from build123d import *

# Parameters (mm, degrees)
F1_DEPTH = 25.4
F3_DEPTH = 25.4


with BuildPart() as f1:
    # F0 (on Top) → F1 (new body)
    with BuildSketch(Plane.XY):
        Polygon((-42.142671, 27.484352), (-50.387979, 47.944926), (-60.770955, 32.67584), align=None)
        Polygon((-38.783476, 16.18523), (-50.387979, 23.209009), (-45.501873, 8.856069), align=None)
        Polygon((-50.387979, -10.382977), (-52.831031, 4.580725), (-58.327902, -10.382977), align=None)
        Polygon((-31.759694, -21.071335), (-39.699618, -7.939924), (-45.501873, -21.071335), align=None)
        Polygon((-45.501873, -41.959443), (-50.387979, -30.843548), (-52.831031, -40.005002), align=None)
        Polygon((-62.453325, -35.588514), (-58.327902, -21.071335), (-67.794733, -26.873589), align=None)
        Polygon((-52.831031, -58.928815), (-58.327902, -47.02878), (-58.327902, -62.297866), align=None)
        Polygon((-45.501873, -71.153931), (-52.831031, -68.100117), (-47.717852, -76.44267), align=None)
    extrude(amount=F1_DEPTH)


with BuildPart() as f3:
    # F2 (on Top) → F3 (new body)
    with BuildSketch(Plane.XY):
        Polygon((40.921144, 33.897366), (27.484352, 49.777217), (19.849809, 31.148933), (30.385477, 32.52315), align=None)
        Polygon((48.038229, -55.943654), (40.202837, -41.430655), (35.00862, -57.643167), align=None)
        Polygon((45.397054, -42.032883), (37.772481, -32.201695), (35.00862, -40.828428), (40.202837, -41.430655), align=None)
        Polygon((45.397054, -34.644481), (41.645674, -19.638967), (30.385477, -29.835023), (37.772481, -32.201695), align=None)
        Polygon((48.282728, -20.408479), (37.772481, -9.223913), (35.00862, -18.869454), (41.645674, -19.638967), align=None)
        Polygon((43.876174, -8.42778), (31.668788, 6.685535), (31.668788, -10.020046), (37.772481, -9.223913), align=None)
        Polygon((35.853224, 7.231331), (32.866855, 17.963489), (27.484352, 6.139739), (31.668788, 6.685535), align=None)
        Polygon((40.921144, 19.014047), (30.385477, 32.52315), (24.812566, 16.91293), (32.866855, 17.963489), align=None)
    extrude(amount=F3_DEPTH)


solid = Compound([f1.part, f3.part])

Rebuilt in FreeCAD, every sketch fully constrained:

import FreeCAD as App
import Part
import Sketcher

V = App.Vector
Q = App.Units.Quantity


def add_polygon(sketch, points):
    """Adds a closed chain of lines whose ends are joined by coincident constraints."""
    first, n = sketch.GeometryCount, len(points)
    for a, b in zip(points, points[1:] + points[:1]):
        sketch.addGeometry(Part.LineSegment(App.Vector(*a, 0), App.Vector(*b, 0)), False)
    for i in range(n):
        sketch.addConstraint(Sketcher.Constraint("Coincident", first + i, 2, first + (i + 1) % n, 1))

doc = App.newDocument("Part")
body = doc.addObject("PartDesign::Body", "Body")
body.AllowCompound = True

# Sketch on XY plane
sketch1 = doc.addObject("Sketcher::SketchObject", "Sketch")
body.addObject(sketch1)
sketch1.AttachmentSupport = (doc.XY_Plane, [""])
sketch1.MapMode = "FlatFace"
add_polygon(sketch1, [(-42, 27), (-50, 48), (-61, 33)])  # lines 0-2
add_polygon(sketch1, [(-39, 16), (-50, 23), (-46, 9)])  # lines 3-5
add_polygon(sketch1, [(-50, -10), (-53, 5), (-58, -10)])  # lines 6-8
add_polygon(sketch1, [(-32, -21), (-40, -8), (-46, -21)])  # lines 9-11
add_polygon(sketch1, [(-46, -42), (-50, -31), (-53, -40)])  # lines 12-14
add_polygon(sketch1, [(-62, -36), (-58, -21), (-68, -27)])  # lines 15-17
add_polygon(sketch1, [(-53, -59), (-58, -47), (-58, -62)])  # lines 18-20
add_polygon(sketch1, [(-46, -71), (-53, -68), (-48, -76)])  # lines 21-23
sketch1.addConstraint(Sketcher.Constraint("Horizontal", 8))
sketch1.addConstraint(Sketcher.Constraint("Horizontal", 11))
sketch1.addConstraint(Sketcher.Constraint("Vertical", 19))
sketch1.addConstraint(Sketcher.Constraint("Perpendicular", 13, 14))
sketch1.addConstraint(Sketcher.Constraint("Perpendicular", 16, 17))
sketch1.addConstraint(Sketcher.Constraint("Perpendicular", 17, 20))
sketch1.addConstraint(Sketcher.Constraint("Perpendicular", 20, 22))
sketch1.addConstraint(Sketcher.Constraint("Horizontal", 11, 2, 15, 2))
sketch1.addConstraint(Sketcher.Constraint("Vertical", 0, 2, 3, 2))
sketch1.addConstraint(Sketcher.Constraint("Vertical", 3, 2, 8, 2))
sketch1.addConstraint(Sketcher.Constraint("Vertical", 4, 2, 10, 2))
sketch1.addConstraint(Sketcher.Constraint("Vertical", 8, 2, 12, 2))
sketch1.addConstraint(Sketcher.Constraint("Vertical", 6, 2, 13, 2))
sketch1.addConstraint(Sketcher.Constraint("Vertical", 10, 2, 14, 2))
sketch1.addConstraint(Sketcher.Constraint("Vertical", 7, 2, 15, 2))
sketch1.addConstraint(Sketcher.Constraint("Vertical", 15, 2, 18, 2))
sketch1.addConstraint(Sketcher.Constraint("Vertical", 13, 2, 20, 2))
sketch1.addConstraint(Sketcher.Constraint("Vertical", 20, 2, 21, 2))
sketch1.addConstraint(Sketcher.Constraint("Vertical", 14, 2, 23, 2))
sketch1.addConstraint(Sketcher.Constraint("Equal", 4, 6))
sketch1.addConstraint(Sketcher.Constraint("DistanceY", 13, 2, -1, 1, Q("1.5750001 in")))
sketch1.addConstraint(Sketcher.Constraint("Distance", 13, Q("9.4816 mm")))
sketch1.addConstraint(Sketcher.Constraint("DistanceX", 11, 1, 11, 2, Q("13.742179 mm")))
sketch1.addConstraint(Sketcher.Constraint("DistanceX", 16, 2, 13, 2, Q("14.963702 mm")))
sketch1.addConstraint(Sketcher.Constraint("DistanceY", 20, 2, 17, 2, Q("23.340301 mm")))
sketch1.addConstraint(Sketcher.Constraint("DistanceY", 21, 2, 20, 2, Q("9.171302 mm")))
sketch1.addConstraint(Sketcher.Constraint("Distance", 0, Q("22.059469 mm")))
sketch1.addConstraint(Sketcher.Constraint("Distance", 7, Q("15.941392 mm")))
sketch1.addConstraint(Sketcher.Constraint("Distance", 9, Q("15.345239 mm")))
sketch1.addConstraint(Sketcher.Constraint("Distance", 12, Q("12.14237 mm")))
sketch1.addConstraint(Sketcher.Constraint("Distance", 15, Q("15.091971 mm")))
sketch1.addConstraint(Sketcher.Constraint("Distance", 16, Q("11.10347 mm")))
sketch1.addConstraint(Sketcher.Constraint("Distance", 21, Q("7.93992 mm")))
sketch1.addConstraint(Sketcher.Constraint("DistanceX", 8, 1, 8, 2, Q("7.939923 mm")))
sketch1.addConstraint(Sketcher.Constraint("DistanceY", 19, 2, 19, 1, Q("15.269086 mm")))
sketch1.addConstraint(Sketcher.Constraint("DistanceX", 0, 2, -1, 1, Q("50.387979 mm")))
sketch1.addConstraint(Sketcher.Constraint("DistanceY", -1, 1, 1, 2, Q("32.67584 mm")))
sketch1.addConstraint(Sketcher.Constraint("DistanceX", 2, 2, -1, 1, Q("42.142671 mm")))
sketch1.addConstraint(Sketcher.Constraint("DistanceY", -1, 1, 3, 2, Q("23.209009 mm")))
sketch1.addConstraint(Sketcher.Constraint("DistanceY", -1, 1, 4, 2, Q("8.856069 mm")))
sketch1.addConstraint(Sketcher.Constraint("DistanceY", -1, 1, 5, 2, Q("16.18523 mm")))
sketch1.addConstraint(Sketcher.Constraint("DistanceY", 16, 2, -1, 1, Q("26.873589 mm")))
sketch1.addConstraint(Sketcher.Constraint("DistanceY", 22, 2, -1, 1, Q("76.44267 mm")))
sketch1.addConstraint(Sketcher.Constraint("DistanceX", 1, 2, 4, 2, Q("15.269082 mm")))
sketch1.addConstraint(Sketcher.Constraint("DistanceX", 1, 2, 5, 2, Q("21.987479 mm")))
sketch1.addConstraint(Sketcher.Constraint("DistanceY", 7, 2, 2, 2, Q("37.867329 mm")))
sketch1.addConstraint(Sketcher.Constraint("DistanceX", 8, 2, 9, 2, Q("10.688361 mm")))
sketch1.addConstraint(Sketcher.Constraint("DistanceY", 9, 2, 6, 2, Q("12.520649 mm")))
pad1 = doc.addObject("PartDesign::Pad", "Pad")
body.addObject(pad1)
pad1.Profile = sketch1
pad1.Length = Q("1 in")
body2 = doc.addObject("PartDesign::Body", "Body001")
body2.AllowCompound = True

# Sketch on XY plane
sketch2 = doc.addObject("Sketcher::SketchObject", "Sketch001")
body2.addObject(sketch2)
sketch2.AttachmentSupport = (doc.getObject("XY_Plane001"), [""])
sketch2.MapMode = "FlatFace"
add_polygon(sketch2, [(40.921144, 33.897366), (27.484352, 49.777217), (19.849809, 31.148933), (30.385477, 32.52315)])  # lines 0-3
add_polygon(sketch2, [(48.038229, -55.943654), (40.202837, -41.430655), (35.00862, -57.643167)])  # lines 4-6
add_polygon(sketch2, [(45.397054, -42.032883), (37.772481, -32.201695), (35.00862, -40.828428), (40.202837, -41.430655)])  # lines 7-10
add_polygon(sketch2, [(45.397054, -34.644481), (41.645674, -19.638967), (30.385477, -29.835023), (37.772481, -32.201695)])  # lines 11-14
add_polygon(sketch2, [(48.282728, -20.408479), (37.772481, -9.223913), (35.00862, -18.869454), (41.645674, -19.638967)])  # lines 15-18
add_polygon(sketch2, [(43.876174, -8.42778), (31.668788, 6.685535), (31.668788, -10.020046), (37.772481, -9.223913)])  # lines 19-22
add_polygon(sketch2, [(35.853224, 7.231331), (32.866855, 17.963489), (27.484352, 6.139739), (31.668788, 6.685535)])  # lines 23-26
add_polygon(sketch2, [(40.921144, 19.014047), (30.385477, 32.52315), (24.812566, 16.91293), (32.866855, 17.963489)])  # lines 27-30
sketch2.addConstraint(Sketcher.Constraint("Vertical", 20))
sketch2.addConstraint(Sketcher.Constraint("Coincident", 9, 2, 4, 2))
sketch2.addConstraint(Sketcher.Constraint("Coincident", 13, 2, 7, 2))
sketch2.addConstraint(Sketcher.Constraint("Coincident", 17, 2, 11, 2))
sketch2.addConstraint(Sketcher.Constraint("Coincident", 21, 2, 15, 2))
sketch2.addConstraint(Sketcher.Constraint("Coincident", 25, 2, 19, 2))
sketch2.addConstraint(Sketcher.Constraint("Coincident", 27, 2, 2, 2))
sketch2.addConstraint(Sketcher.Constraint("Coincident", 29, 2, 23, 2))
sketch2.addConstraint(Sketcher.Constraint("DistanceY", 20, 2, 20, 1, Q("0.6577 in")))
sketch2.addConstraint(Sketcher.Constraint("Distance", 1, Q("0.7926002 in")))
sketch2.addConstraint(Sketcher.Constraint("DistanceX", 3, 2, 6, 2, Q("0.2802002 in")))
sketch2.addConstraint(Sketcher.Constraint("DistanceY", 5, 2, 1, 2, Q("88.7921 mm")))
sketch2.addConstraint(Sketcher.Constraint("DistanceY", 6, 2, 4, 2, Q("14.512999 mm")))
sketch2.addConstraint(Sketcher.Constraint("DistanceY", 10, 2, 14, 2, Q("7.388402 mm")))
sketch2.addConstraint(Sketcher.Constraint("DistanceY", 14, 2, 18, 2, Q("14.236002 mm")))
sketch2.addConstraint(Sketcher.Constraint("DistanceX", 11, 2, 22, 2, Q("2.2305 mm")))
sketch2.addConstraint(Sketcher.Constraint("DistanceY", 15, 2, 23, 2, Q("27.187402 mm")))
sketch2.addConstraint(Sketcher.Constraint("DistanceY", 26, 2, 28, 2, Q("9.681599 mm")))
sketch2.addConstraint(Sketcher.Constraint("Distance", 3, Q("10.624912 mm")))
sketch2.addConstraint(Sketcher.Constraint("Distance", 5, Q("17.02426 mm")))
sketch2.addConstraint(Sketcher.Constraint("Distance", 6, Q("13.139979 mm")))
sketch2.addConstraint(Sketcher.Constraint("Distance", 11, Q("15.46733 mm")))
sketch2.addConstraint(Sketcher.Constraint("Distance", 12, Q("15.19051 mm")))
sketch2.addConstraint(Sketcher.Constraint("Distance", 14, Q("8.00633 mm")))
sketch2.addConstraint(Sketcher.Constraint("Distance", 23, Q("11.139911 mm")))
sketch2.addConstraint(Sketcher.Constraint("Distance", 25, Q("4.219881 mm")))
sketch2.addConstraint(Sketcher.Constraint("Distance", 26, Q("4.219881 mm")))
sketch2.addConstraint(Sketcher.Constraint("Distance", 27, Q("17.131729 mm")))
sketch2.addConstraint(Sketcher.Constraint("Distance", 28, Q("16.575171 mm")))
sketch2.addConstraint(Sketcher.Constraint("DistanceX", -1, 1, 1, 2, Q("19.849809 mm")))
sketch2.addConstraint(Sketcher.Constraint("DistanceY", -1, 1, 2, 2, Q("32.52315 mm")))
sketch2.addConstraint(Sketcher.Constraint("DistanceX", -1, 1, 5, 2, Q("35.00862 mm")))
sketch2.addConstraint(Sketcher.Constraint("DistanceX", -1, 1, 6, 2, Q("48.038229 mm")))
sketch2.addConstraint(Sketcher.Constraint("DistanceX", -1, 1, 7, 2, Q("37.772481 mm")))
sketch2.addConstraint(Sketcher.Constraint("DistanceX", -1, 1, 8, 2, Q("35.00862 mm")))
sketch2.addConstraint(Sketcher.Constraint("DistanceY", 8, 2, -1, 1, Q("40.828428 mm")))
sketch2.addConstraint(Sketcher.Constraint("DistanceY", 14, 2, -1, 1, Q("34.644481 mm")))
sketch2.addConstraint(Sketcher.Constraint("DistanceX", -1, 1, 15, 2, Q("37.772481 mm")))
sketch2.addConstraint(Sketcher.Constraint("DistanceX", -1, 1, 16, 2, Q("35.00862 mm")))
sketch2.addConstraint(Sketcher.Constraint("DistanceY", 22, 2, -1, 1, Q("8.42778 mm")))
sketch2.addConstraint(Sketcher.Constraint("DistanceY", -1, 1, 23, 2, Q("17.963489 mm")))
sketch2.addConstraint(Sketcher.Constraint("DistanceY", -1, 1, 24, 2, Q("6.139739 mm")))
sketch2.addConstraint(Sketcher.Constraint("DistanceY", -1, 1, 26, 2, Q("7.231331 mm")))
sketch2.addConstraint(Sketcher.Constraint("DistanceX", 1, 2, 2, 2, Q("10.535668 mm")))
sketch2.addConstraint(Sketcher.Constraint("DistanceX", 0, 2, 3, 2, Q("13.436792 mm")))
sketch2.addConstraint(Sketcher.Constraint("DistanceY", 3, 2, 0, 2, Q("15.879851 mm")))
sketch2.addConstraint(Sketcher.Constraint("DistanceY", 4, 2, 7, 2, Q("9.22896 mm")))
sketch2.addConstraint(Sketcher.Constraint("DistanceY", 4, 2, 11, 2, Q("21.791688 mm")))
sketch2.addConstraint(Sketcher.Constraint("DistanceX", 11, 2, 10, 2, Q("3.75138 mm")))
sketch2.addConstraint(Sketcher.Constraint("DistanceX", 12, 2, 4, 2, Q("9.81736 mm")))
sketch2.addConstraint(Sketcher.Constraint("DistanceY", 16, 2, 15, 2, Q("9.645541 mm")))
sketch2.addConstraint(Sketcher.Constraint("DistanceY", 16, 2, 19, 2, Q("25.554989 mm")))
sketch2.addConstraint(Sketcher.Constraint("DistanceX", 2, 2, 19, 2, Q("1.283311 mm")))
sketch2.addConstraint(Sketcher.Constraint("DistanceX", 23, 2, 30, 2, Q("8.054289 mm")))
sketch2.addConstraint(Sketcher.Constraint("Distance", 15, Q("15.347958 mm")))
pad2 = doc.addObject("PartDesign::Pad", "Pad001")
body2.addObject(pad2)
pad2.Profile = sketch2
pad2.Length = Q("1 in")

doc.recompute()
